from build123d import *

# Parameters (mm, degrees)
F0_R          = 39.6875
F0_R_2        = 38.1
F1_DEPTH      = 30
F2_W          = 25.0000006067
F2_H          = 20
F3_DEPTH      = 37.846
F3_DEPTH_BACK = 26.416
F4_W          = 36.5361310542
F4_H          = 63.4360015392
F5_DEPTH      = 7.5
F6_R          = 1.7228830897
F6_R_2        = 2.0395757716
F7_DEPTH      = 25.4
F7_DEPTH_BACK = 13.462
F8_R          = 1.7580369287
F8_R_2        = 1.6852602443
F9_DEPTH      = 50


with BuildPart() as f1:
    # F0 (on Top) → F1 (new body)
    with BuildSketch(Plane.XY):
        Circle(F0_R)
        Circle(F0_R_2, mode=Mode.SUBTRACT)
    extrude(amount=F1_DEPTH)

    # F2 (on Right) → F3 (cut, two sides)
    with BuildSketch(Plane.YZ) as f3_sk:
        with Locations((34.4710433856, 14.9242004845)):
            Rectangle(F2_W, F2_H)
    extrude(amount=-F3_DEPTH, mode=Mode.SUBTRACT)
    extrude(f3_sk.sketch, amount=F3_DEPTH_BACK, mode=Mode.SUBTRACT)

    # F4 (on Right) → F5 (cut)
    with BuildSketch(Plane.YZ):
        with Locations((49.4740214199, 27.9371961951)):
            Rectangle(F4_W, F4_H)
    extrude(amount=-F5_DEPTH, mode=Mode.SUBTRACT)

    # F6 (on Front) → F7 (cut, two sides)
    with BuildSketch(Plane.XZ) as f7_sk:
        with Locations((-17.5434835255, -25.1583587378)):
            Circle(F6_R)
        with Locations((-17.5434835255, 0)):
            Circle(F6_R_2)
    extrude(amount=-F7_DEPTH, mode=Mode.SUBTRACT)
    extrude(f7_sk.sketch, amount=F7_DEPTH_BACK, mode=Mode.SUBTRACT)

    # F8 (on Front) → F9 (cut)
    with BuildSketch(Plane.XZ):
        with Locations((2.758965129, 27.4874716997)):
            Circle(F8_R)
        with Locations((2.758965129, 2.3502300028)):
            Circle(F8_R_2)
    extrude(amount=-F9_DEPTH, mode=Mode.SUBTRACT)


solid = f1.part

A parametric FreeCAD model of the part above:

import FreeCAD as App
import Part
import Sketcher
from FreeCAD import Vector
Q = App.Units.Quantity


def add_polygon(sketch, points):
    """Adds a closed chain of lines whose ends are joined by coincident constraints."""
    first, n = sketch.GeometryCount, len(points)
    for a, b in zip(points, points[1:] + points[:1]):
        sketch.addGeometry(Part.LineSegment(App.Vector(*a, 0), App.Vector(*b, 0)), False)
    for i in range(n):
        sketch.addConstraint(Sketcher.Constraint("Coincident", first + i, 2, first + (i + 1) % n, 1))

doc = App.newDocument("Part")
body = doc.addObject("PartDesign::Body", "Body")

sketch1 = body.newObject("Sketcher::SketchObject", "Sketch")
sketch1.AttachmentSupport = (doc.getObject("XY_Plane"), [""])
sketch1.MapMode = "FlatFace"
sketch1.addGeometry([
    Part.Circle(Vector(0, 0, 0), Vector(0, 0, 1), 40),
    Part.Circle(Vector(0, 0, 0), Vector(0, 0, 1), 38),
], False)
sketch1.addConstraint([
    Sketcher.Constraint("Coincident", 0, 3, -1, 1),
    Sketcher.Constraint("Coincident", 1, 3, -1, 1),
    Sketcher.Constraint("Diameter", 1, Q("76.2 mm")),
    Sketcher.Constraint("Diameter", 0, Q("79.375 mm")),
])
pad1 = body.newObject("PartDesign::Pad", "Pad")
pad1.Profile = sketch1
pad1.Length = 30

sketch2 = body.newObject("Sketcher::SketchObject", "Sketch001")
sketch2.AttachmentSupport = (doc.getObject("YZ_Plane"), [""])
sketch2.MapMode = "FlatFace"
add_polygon(sketch2, [(22, 25), (22, 5), (47, 5), (47, 25)])
sketch2.addConstraint([
    Sketcher.Constraint("Vertical", 0),
    Sketcher.Constraint("Horizontal", 1),
    Sketcher.Constraint("Vertical", 2),
    Sketcher.Constraint("Horizontal", 3),
    Sketcher.Constraint("DistanceX", 1, 1, 1, 2, Q("25.000001 mm")),
    Sketcher.Constraint("DistanceY", 0, 2, 0, 1, Q("20 mm")),
    Sketcher.Constraint("DistanceY", -1, 1, 0, 2, Q("4.9242 mm")),
    Sketcher.Constraint("DistanceX", -1, 1, 0, 2, Q("21.971043 mm")),
])
pocket1 = body.newObject("PartDesign::Pocket", "Pocket")
pocket1.Profile = sketch2
pocket1.Type = "TwoLengths"
pocket1.Length = 37.846
pocket1.Length2 = 26.416

sketch3 = body.newObject("Sketcher::SketchObject", "Sketch002")
sketch3.AttachmentSupport = (doc.getObject("YZ_Plane"), [""])
sketch3.MapMode = "FlatFace"
add_polygon(sketch3, [(31, 60), (31, -4), (68, -4), (68, 60)])
sketch3.addConstraint([
    Sketcher.Constraint("Vertical", 0),
    Sketcher.Constraint("Horizontal", 1),
    Sketcher.Constraint("Vertical", 2),
    Sketcher.Constraint("Horizontal", 3),
    Sketcher.Constraint("DistanceY", 0, 2, 0, 1, Q("63.436002 mm")),
    Sketcher.Constraint("DistanceX", 1, 1, 1, 2, Q("36.536131 mm")),
    Sketcher.Constraint("DistanceX", -1, 1, 0, 2, Q("31.205956 mm")),
    Sketcher.Constraint("DistanceY", 0, 2, -1, 1, Q("3.780805 mm")),
])
pocket2 = body.newObject("PartDesign::Pocket", "Pocket001")
pocket2.Profile = sketch3
pocket2.Length = 7.5

sketch4 = body.newObject("Sketcher::SketchObject", "Sketch003")
sketch4.AttachmentSupport = (doc.getObject("XZ_Plane"), [""])
sketch4.MapMode = "FlatFace"
sketch4.addGeometry([
    Part.Circle(Vector(-17.5, -25.2, 0), Vector(0, 0, 1), 1.7),
    Part.Circle(Vector(-17.5, 0, 0), Vector(0, 0, 1), 2),
], False)
sketch4.addConstraint([
    Sketcher.Constraint("PointOnObject", 1, 3, -1),
    Sketcher.Constraint("Vertical", 0, 3, 1, 3),
    Sketcher.Constraint("Diameter", 1, Q("4.079152 mm")),
    Sketcher.Constraint("Diameter", 0, Q("3.445766 mm")),
    Sketcher.Constraint("DistanceY", 0, 3, -1, 1, Q("25.158359 mm")),
    Sketcher.Constraint("DistanceX", 0, 3, -1, 1, Q("17.543484 mm")),
])
pocket3 = body.newObject("PartDesign::Pocket", "Pocket002")
pocket3.Profile = sketch4
pocket3.Type = "TwoLengths"
pocket3.Length = 25.4
pocket3.Length2 = 13.462

sketch5 = body.newObject("Sketcher::SketchObject", "Sketch004")
sketch5.AttachmentSupport = (doc.getObject("XZ_Plane"), [""])
sketch5.MapMode = "FlatFace"
sketch5.addGeometry([
    Part.Circle(Vector(2.8, 27.5, 0), Vector(0, 0, 1), 1.8),
    Part.Circle(Vector(2.8, 2.4, 0), Vector(0, 0, 1), 1.7),
], False)
sketch5.addConstraint([
    Sketcher.Constraint("Vertical", 0, 3, 1, 3),
    Sketcher.Constraint("Diameter", 1, Q("3.37052 mm")),
    Sketcher.Constraint("Diameter", 0, Q("3.516074 mm")),
    Sketcher.Constraint("DistanceY", -1, 1, 0, 3, Q("27.487472 mm")),
    Sketcher.Constraint("DistanceY", -1, 1, 1, 3, Q("2.35023 mm")),
    Sketcher.Constraint("DistanceX", -1, 1, 0, 3, Q("2.758965 mm")),
])
pocket4 = body.newObject("PartDesign::Pocket", "Pocket003")
pocket4.Profile = sketch5
pocket4.Length = 50

doc.recompute()
